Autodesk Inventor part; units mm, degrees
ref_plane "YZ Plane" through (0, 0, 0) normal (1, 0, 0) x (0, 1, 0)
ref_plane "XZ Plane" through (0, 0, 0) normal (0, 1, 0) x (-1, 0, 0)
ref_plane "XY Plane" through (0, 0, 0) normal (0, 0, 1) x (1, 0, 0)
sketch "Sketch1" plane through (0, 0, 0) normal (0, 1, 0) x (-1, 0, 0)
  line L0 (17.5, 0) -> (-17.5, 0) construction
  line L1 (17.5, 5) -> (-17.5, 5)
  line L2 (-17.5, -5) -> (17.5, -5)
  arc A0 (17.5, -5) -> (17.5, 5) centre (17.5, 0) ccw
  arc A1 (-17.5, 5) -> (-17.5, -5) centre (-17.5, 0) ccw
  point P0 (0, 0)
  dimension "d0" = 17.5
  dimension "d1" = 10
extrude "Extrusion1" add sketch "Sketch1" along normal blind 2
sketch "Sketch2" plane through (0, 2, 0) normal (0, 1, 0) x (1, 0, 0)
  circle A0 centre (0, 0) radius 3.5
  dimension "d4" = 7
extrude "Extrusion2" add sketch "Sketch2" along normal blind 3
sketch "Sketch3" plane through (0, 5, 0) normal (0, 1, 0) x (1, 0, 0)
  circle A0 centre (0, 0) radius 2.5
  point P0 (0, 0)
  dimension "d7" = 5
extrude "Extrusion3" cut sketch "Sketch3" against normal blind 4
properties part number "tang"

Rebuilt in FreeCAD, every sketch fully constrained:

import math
import FreeCAD as App
import Part
import Sketcher
from FreeCAD import Vector

doc = App.newDocument("Part")
body = doc.addObject("PartDesign::Body", "Body")

sketch1 = body.newObject("Sketcher::SketchObject", "Sketch")
sketch1.AttachmentSupport = (doc.getObject("XZ_Plane"), [""])
sketch1.MapMode = "FlatFace"
sketch1.addGeometry([
    Part.ArcOfCircle(Part.Circle(Vector(-18, 0, 0), Vector(0, 0, 1), 5), math.radians(90), math.radians(270)),
    Part.LineSegment(Vector(-18, 5, 0), Vector(18, 5, 0)),
    Part.ArcOfCircle(Part.Circle(Vector(18, 0, 0), Vector(0, 0, 1), 5), math.radians(-90), math.radians(90)),
    Part.LineSegment(Vector(18, -5, 0), Vector(-18, -5, 0)),
], False)
sketch1.addConstraint([
    Sketcher.Constraint("Tangent", 0, 1, 1, 1),
    Sketcher.Constraint("Tangent", 1, 2, 2, 2),
    Sketcher.Constraint("Tangent", 2, 1, 3, 1),
    Sketcher.Constraint("Tangent", 3, 2, 0, 2),
    Sketcher.Constraint("Horizontal", 1),
    Sketcher.Constraint("Horizontal", 3),
    Sketcher.Constraint("Symmetric", 0, 3, 2, 3, -1, 1),
    Sketcher.Constraint("Radius", 0, 5.0),
    Sketcher.Constraint("DistanceX", 0, 3, -1, 1, 17.5),
])
pad1 = body.newObject("PartDesign::Pad", "Pad")
pad1.Profile = sketch1
pad1.Length = 2
pad1.Reversed = True

sketch2 = body.newObject("Sketcher::SketchObject", "Sketch001")
sketch2.AttachmentSupport = (doc.getObject("XZ_Plane"), [""])
sketch2.MapMode = "FlatFace"
sketch2.AttachmentOffset = App.Placement(Vector(0, 0, -2), App.Rotation())
sketch2.addGeometry(Part.Circle(Vector(0, 0, 0), Vector(0, 0, 1), 3.5), False)
sketch2.addConstraint([
    Sketcher.Constraint("Coincident", 0, 3, -1, 1),
    Sketcher.Constraint("Diameter", 0, 7.0),
])
pad2 = body.newObject("PartDesign::Pad", "Pad001")
pad2.Profile = sketch2
pad2.Length = 3
pad2.Reversed = True

sketch3 = body.newObject("Sketcher::SketchObject", "Sketch002")
sketch3.AttachmentSupport = (doc.getObject("XZ_Plane"), [""])
sketch3.MapMode = "FlatFace"
sketch3.AttachmentOffset = App.Placement(Vector(0, 0, -5), App.Rotation())
sketch3.addGeometry(Part.Circle(Vector(0, 0, 0), Vector(0, 0, 1), 2.5), False)
sketch3.addConstraint([
    Sketcher.Constraint("Coincident", 0, 3, -1, 1),
    Sketcher.Constraint("Diameter", 0, 5.0),
])
pocket1 = body.newObject("PartDesign::Pocket", "Pocket")
pocket1.Profile = sketch3
pocket1.Length = 4
pocket1.Reversed = True

doc.recompute()
